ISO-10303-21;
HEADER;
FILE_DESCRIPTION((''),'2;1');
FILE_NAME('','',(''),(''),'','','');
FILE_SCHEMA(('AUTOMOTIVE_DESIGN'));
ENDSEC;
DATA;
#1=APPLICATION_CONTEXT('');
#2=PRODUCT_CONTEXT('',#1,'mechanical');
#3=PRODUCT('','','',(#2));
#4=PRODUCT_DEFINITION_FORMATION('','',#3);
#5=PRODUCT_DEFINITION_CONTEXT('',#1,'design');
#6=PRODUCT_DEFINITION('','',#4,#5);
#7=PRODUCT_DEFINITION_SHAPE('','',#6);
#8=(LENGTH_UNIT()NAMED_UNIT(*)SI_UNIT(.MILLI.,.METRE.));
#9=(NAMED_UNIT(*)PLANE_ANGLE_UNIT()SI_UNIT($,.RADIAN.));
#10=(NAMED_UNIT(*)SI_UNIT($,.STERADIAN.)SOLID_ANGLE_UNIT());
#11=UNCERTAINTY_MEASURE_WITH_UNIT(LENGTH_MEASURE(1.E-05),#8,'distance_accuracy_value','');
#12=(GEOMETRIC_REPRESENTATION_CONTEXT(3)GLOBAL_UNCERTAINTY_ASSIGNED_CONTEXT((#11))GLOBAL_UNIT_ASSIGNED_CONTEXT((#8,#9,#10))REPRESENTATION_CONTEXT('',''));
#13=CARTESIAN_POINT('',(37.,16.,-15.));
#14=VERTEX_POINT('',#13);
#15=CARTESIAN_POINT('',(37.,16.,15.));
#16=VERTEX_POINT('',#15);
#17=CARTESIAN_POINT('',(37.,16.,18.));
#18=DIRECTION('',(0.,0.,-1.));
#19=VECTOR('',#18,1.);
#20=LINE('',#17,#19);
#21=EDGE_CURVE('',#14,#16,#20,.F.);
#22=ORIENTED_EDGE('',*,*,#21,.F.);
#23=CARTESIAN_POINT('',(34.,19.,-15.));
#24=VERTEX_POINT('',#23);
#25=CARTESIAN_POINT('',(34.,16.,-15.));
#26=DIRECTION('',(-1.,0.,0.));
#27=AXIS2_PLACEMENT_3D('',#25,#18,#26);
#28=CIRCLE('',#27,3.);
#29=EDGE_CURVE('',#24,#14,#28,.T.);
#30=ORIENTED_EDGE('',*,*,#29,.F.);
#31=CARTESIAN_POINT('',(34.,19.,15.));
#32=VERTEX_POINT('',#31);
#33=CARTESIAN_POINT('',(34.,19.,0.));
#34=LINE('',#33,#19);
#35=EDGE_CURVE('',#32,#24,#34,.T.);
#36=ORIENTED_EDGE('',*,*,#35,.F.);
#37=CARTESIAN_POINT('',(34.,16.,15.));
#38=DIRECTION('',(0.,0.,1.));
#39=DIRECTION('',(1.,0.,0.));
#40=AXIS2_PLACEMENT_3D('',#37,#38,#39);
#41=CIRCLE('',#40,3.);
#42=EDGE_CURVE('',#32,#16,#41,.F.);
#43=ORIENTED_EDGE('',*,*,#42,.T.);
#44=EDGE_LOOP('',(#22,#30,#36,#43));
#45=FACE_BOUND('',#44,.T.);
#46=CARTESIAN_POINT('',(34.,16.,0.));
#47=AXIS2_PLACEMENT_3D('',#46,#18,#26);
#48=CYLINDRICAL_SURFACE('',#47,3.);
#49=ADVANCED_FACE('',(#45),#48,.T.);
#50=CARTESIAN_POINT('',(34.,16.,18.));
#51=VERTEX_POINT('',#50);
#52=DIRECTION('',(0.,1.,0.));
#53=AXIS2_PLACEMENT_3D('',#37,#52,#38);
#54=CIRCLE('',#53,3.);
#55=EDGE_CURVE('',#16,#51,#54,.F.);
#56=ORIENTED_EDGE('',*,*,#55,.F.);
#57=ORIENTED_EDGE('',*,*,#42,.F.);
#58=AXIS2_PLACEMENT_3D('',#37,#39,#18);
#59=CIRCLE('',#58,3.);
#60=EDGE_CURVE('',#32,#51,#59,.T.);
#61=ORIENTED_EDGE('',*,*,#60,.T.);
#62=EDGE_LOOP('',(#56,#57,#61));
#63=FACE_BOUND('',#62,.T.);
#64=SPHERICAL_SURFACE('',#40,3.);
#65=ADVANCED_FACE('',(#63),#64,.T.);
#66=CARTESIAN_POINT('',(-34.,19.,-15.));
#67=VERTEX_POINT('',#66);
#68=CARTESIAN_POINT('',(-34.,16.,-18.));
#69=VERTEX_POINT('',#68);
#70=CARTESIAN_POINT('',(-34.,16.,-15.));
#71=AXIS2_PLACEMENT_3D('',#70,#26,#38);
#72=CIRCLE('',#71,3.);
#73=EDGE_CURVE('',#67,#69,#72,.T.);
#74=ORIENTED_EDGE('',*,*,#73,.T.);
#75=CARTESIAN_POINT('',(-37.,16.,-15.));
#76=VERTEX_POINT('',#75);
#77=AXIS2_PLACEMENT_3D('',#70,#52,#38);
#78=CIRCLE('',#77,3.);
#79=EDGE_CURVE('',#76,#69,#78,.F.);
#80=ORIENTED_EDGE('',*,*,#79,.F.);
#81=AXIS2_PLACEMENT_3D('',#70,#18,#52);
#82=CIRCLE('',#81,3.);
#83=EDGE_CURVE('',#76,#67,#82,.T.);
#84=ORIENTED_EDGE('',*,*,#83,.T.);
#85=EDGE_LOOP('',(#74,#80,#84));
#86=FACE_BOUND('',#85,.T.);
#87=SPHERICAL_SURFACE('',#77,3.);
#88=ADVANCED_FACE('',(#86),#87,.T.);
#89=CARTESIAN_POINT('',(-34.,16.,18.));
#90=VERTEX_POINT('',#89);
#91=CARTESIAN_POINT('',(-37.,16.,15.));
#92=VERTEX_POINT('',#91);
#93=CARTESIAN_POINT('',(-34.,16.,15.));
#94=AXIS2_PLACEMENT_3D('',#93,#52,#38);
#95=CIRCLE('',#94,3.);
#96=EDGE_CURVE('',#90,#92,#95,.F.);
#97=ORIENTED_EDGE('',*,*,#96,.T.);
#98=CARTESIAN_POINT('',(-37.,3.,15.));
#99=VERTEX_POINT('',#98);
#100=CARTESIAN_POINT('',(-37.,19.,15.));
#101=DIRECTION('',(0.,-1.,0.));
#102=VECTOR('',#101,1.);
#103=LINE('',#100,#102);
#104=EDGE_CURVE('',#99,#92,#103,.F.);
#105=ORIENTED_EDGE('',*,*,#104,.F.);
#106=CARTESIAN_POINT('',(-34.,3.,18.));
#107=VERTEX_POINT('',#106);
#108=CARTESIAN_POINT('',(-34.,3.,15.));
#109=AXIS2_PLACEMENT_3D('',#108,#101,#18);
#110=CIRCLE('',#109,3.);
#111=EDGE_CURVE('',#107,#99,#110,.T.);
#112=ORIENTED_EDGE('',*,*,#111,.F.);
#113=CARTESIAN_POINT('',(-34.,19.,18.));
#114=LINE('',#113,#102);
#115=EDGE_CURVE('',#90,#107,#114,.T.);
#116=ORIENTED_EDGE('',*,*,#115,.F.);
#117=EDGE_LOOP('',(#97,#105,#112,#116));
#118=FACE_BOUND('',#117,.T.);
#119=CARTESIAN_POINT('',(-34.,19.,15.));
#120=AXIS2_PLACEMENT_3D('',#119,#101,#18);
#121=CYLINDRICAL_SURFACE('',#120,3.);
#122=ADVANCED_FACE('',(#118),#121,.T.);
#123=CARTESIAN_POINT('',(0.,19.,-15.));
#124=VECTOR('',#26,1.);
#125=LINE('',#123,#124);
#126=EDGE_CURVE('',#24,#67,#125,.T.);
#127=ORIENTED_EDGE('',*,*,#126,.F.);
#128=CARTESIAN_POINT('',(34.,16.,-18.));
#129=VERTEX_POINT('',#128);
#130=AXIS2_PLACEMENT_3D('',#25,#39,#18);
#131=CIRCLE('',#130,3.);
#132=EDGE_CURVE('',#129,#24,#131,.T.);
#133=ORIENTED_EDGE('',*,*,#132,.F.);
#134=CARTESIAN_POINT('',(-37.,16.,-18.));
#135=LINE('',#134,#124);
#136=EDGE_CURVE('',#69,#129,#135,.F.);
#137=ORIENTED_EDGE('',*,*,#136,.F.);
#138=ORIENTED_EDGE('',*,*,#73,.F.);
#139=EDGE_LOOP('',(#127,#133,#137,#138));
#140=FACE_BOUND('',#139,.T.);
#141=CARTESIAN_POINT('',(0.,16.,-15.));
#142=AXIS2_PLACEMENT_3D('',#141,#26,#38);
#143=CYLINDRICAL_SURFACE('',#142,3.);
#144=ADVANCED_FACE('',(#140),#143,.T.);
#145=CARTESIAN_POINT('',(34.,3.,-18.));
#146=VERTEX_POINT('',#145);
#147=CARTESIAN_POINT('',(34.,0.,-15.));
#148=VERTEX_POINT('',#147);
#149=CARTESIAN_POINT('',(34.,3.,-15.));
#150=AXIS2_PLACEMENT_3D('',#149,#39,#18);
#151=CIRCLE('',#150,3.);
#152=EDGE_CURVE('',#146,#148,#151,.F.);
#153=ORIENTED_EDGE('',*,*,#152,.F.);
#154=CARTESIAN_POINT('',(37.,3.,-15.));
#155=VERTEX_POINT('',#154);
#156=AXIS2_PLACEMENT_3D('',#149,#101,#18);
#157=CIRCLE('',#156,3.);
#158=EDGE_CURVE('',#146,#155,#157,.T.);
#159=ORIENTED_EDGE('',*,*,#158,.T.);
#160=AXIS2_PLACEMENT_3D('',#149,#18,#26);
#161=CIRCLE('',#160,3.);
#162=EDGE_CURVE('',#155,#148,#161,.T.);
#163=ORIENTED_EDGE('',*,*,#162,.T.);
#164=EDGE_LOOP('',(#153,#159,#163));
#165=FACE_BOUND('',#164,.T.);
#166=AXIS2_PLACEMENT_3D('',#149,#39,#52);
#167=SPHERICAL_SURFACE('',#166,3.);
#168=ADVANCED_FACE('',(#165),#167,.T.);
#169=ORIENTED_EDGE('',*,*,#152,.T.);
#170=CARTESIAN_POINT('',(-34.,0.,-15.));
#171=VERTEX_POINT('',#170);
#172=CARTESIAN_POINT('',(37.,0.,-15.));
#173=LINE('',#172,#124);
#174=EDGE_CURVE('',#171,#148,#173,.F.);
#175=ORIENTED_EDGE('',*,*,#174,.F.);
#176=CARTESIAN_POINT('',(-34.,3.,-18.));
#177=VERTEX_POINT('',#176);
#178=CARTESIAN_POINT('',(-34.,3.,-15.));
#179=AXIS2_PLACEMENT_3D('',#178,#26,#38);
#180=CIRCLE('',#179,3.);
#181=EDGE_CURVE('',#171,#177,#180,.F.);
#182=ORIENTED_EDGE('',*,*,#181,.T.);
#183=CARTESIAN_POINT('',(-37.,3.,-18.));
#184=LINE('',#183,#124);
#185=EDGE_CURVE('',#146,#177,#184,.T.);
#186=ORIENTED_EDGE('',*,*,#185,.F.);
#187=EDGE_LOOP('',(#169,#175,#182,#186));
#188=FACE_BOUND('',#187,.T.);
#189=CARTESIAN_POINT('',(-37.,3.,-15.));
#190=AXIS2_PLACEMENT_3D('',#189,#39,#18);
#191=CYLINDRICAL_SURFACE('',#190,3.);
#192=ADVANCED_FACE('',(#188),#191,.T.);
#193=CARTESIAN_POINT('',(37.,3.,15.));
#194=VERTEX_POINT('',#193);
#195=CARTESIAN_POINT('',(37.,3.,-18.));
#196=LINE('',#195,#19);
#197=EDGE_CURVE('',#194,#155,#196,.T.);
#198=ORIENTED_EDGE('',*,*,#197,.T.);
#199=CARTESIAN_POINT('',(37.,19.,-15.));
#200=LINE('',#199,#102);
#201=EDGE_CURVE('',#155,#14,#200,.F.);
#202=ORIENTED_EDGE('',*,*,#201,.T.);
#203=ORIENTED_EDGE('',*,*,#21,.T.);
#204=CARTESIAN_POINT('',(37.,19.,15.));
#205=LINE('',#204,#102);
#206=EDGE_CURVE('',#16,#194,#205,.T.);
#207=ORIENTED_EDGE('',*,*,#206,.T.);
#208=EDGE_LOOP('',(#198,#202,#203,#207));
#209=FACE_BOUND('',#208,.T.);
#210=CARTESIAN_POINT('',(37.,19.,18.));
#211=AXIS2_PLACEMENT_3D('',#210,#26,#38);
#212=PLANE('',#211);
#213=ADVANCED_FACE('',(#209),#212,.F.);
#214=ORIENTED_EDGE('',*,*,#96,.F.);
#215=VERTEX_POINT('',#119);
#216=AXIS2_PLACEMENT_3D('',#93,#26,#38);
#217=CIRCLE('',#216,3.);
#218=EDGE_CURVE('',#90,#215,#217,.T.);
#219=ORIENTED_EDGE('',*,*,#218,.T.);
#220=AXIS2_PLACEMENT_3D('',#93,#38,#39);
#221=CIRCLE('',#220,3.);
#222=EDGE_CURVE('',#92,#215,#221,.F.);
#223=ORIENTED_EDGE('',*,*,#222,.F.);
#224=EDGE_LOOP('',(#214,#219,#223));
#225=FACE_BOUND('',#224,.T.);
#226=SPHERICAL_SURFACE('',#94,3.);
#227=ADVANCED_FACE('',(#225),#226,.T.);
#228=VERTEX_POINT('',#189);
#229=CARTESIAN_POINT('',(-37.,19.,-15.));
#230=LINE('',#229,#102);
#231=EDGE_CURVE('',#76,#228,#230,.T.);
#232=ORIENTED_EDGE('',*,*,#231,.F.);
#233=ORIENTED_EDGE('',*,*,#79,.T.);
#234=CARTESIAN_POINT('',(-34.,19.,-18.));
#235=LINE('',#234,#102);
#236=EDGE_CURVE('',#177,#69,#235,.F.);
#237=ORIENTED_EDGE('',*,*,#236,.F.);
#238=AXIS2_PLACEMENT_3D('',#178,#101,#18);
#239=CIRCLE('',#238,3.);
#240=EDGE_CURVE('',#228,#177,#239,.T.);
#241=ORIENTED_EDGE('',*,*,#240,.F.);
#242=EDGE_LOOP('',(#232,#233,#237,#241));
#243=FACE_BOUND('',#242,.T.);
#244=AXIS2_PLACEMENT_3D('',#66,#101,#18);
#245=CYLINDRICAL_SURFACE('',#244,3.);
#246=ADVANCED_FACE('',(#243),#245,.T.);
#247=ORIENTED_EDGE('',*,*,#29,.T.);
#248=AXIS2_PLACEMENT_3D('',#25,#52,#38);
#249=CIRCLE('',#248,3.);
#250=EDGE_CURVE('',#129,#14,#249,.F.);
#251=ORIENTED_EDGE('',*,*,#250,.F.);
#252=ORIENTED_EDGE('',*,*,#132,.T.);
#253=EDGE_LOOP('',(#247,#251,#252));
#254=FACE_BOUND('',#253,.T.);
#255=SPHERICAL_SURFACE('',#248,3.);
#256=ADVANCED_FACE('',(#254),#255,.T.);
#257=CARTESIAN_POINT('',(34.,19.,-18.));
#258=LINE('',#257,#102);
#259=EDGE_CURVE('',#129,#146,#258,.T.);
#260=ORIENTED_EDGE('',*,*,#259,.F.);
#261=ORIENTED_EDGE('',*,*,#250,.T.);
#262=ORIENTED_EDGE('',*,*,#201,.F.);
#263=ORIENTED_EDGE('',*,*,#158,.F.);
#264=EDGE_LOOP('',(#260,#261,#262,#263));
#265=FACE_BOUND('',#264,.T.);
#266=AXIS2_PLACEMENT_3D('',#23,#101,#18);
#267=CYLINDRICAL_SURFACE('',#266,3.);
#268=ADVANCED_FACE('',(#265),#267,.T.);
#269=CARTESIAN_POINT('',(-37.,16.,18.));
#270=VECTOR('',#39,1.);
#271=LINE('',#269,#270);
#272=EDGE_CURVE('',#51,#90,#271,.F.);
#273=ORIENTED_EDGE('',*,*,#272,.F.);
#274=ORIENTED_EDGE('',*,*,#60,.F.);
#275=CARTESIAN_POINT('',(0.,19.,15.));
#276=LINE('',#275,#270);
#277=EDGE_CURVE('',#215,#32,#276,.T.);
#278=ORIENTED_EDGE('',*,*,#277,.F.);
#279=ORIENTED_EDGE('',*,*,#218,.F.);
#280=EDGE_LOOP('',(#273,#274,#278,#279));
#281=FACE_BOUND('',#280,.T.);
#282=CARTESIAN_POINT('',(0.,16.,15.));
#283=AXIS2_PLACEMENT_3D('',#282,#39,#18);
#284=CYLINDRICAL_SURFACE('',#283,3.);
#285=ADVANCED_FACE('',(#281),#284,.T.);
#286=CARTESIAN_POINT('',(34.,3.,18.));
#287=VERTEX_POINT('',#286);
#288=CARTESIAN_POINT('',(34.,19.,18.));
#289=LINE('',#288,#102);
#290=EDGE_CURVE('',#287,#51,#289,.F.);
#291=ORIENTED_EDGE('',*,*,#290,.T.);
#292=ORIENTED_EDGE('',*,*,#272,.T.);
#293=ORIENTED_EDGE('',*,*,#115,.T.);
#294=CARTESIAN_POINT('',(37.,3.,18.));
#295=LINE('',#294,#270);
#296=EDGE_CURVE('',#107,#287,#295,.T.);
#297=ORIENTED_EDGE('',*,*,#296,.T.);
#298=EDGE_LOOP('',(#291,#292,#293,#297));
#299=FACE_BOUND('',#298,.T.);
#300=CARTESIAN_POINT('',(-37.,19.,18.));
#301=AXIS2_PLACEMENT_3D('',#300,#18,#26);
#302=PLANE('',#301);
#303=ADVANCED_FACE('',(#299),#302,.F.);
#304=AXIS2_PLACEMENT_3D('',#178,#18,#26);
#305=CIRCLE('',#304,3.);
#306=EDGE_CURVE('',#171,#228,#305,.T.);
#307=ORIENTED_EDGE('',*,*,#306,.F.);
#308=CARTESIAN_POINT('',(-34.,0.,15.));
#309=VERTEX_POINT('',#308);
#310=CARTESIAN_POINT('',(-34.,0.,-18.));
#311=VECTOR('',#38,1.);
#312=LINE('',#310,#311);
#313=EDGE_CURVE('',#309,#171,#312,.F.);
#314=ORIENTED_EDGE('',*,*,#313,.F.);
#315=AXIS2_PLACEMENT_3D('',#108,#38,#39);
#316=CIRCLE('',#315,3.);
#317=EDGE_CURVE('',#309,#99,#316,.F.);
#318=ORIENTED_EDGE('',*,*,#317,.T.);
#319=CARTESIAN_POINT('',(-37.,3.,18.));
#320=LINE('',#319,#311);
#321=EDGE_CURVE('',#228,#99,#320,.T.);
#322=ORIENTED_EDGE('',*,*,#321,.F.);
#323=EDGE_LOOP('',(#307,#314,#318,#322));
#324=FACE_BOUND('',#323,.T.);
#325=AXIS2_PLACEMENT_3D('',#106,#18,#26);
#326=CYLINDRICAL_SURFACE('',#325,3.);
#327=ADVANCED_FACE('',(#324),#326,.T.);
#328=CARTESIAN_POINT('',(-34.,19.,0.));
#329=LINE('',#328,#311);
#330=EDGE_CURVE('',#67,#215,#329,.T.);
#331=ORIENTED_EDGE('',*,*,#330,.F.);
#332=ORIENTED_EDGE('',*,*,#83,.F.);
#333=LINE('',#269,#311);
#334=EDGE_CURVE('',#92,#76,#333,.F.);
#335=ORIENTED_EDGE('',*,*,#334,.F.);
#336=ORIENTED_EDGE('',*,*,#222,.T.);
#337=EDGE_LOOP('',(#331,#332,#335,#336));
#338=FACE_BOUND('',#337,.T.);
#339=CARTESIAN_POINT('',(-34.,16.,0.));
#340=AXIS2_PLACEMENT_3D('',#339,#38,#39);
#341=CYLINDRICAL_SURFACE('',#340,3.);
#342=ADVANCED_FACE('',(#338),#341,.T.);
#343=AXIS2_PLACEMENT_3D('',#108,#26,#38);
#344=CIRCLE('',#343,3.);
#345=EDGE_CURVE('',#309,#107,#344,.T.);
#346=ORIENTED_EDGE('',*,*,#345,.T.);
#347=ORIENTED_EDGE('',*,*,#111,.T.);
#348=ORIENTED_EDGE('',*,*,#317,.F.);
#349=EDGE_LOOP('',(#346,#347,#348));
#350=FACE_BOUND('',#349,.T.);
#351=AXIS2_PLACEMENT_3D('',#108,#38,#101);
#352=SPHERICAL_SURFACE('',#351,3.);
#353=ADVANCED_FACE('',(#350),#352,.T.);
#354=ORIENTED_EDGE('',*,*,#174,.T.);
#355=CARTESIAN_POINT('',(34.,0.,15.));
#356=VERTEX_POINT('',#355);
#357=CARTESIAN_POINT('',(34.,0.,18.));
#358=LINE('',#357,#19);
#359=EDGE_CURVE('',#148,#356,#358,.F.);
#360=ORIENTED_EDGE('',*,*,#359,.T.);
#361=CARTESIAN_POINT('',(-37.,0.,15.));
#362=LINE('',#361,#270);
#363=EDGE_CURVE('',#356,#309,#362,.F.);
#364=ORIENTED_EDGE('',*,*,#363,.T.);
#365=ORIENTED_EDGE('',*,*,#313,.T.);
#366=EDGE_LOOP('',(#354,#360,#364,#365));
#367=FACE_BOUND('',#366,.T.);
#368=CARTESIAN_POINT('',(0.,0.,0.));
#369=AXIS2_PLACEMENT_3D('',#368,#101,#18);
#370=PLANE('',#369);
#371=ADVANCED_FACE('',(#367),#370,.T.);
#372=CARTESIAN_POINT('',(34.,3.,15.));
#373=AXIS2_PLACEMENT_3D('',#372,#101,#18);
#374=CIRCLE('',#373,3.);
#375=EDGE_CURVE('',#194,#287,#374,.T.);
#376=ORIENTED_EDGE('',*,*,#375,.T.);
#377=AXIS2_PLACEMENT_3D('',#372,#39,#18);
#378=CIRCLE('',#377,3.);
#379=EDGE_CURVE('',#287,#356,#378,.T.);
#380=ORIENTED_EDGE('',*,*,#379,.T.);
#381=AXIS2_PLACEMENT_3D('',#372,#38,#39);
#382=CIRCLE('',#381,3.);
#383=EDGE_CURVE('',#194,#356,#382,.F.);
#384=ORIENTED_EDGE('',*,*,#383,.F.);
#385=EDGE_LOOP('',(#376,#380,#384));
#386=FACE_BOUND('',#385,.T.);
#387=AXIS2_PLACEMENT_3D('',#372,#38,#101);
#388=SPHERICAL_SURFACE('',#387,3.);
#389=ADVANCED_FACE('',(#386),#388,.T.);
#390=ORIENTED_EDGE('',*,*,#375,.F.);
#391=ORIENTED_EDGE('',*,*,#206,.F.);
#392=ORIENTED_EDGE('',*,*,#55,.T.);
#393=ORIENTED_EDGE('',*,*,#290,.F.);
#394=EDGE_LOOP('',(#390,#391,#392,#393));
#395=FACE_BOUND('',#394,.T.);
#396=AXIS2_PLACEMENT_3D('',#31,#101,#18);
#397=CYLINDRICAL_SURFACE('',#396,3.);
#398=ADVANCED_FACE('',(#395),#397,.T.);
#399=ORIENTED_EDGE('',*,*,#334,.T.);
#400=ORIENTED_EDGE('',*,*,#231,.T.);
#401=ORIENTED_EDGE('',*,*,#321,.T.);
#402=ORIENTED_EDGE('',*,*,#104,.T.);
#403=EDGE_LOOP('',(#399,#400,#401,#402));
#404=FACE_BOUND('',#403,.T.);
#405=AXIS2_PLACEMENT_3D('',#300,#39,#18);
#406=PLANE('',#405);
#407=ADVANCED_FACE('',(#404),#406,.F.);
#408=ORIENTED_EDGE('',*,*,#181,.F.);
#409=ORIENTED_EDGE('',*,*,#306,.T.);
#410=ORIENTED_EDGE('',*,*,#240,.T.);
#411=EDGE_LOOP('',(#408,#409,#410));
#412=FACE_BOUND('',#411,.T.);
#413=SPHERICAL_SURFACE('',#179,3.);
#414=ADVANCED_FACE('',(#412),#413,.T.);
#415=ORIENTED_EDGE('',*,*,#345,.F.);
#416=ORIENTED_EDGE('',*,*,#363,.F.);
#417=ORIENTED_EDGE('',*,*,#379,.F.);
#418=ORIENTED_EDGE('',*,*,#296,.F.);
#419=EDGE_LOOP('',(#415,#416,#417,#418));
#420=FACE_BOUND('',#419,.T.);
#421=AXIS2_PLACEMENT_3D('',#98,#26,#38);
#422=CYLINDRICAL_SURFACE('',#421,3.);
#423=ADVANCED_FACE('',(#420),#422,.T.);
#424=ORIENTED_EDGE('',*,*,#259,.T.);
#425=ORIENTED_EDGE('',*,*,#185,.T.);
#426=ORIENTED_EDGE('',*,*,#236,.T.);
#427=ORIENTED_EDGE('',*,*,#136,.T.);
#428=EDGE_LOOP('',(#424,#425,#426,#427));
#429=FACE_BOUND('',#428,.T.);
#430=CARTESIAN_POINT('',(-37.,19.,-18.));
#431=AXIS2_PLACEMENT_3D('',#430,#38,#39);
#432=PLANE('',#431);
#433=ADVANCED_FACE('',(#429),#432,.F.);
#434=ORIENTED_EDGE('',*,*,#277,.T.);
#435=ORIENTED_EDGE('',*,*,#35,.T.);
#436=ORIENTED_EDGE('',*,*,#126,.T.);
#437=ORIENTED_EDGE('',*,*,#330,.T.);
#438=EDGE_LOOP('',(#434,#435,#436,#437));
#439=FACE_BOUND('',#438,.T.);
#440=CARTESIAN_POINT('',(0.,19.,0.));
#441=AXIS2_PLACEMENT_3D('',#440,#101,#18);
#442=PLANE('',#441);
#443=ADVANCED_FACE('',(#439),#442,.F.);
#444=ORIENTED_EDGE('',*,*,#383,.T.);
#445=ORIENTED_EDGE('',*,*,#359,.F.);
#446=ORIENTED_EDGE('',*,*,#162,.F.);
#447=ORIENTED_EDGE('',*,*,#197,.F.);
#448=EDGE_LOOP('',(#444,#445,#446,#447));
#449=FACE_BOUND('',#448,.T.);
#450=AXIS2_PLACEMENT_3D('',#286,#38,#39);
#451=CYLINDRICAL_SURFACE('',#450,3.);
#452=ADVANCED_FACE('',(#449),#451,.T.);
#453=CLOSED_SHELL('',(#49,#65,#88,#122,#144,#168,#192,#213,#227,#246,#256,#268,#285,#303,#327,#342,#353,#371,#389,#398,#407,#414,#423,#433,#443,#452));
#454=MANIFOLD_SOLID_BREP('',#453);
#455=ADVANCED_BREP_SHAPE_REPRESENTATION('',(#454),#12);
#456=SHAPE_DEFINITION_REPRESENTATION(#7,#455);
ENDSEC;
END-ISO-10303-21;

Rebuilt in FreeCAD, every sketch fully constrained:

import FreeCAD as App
import Part
import Sketcher

V = App.Vector
Q = App.Units.Quantity

doc = App.newDocument("Part")
body = doc.addObject("PartDesign::Body", "Body")

sketch1 = doc.addObject("Sketcher::SketchObject", "Sketch")
body.addObject(sketch1)
sketch1.AttachmentSupport = (doc.XZ_Plane, [""])
sketch1.MapMode = "FlatFace"
sketch1.addGeometry(Part.LineSegment(V(-37, -18, 0), V(-37, 18, 0)), False)
sketch1.addGeometry(Part.LineSegment(V(-37, 18, 0), V(37, 18, 0)), False)
sketch1.addGeometry(Part.LineSegment(V(37, 18, 0), V(37, -18, 0)), False)
sketch1.addGeometry(Part.LineSegment(V(37, -18, 0), V(-37, -18, 0)), False)
sketch1.addConstraint(Sketcher.Constraint("Coincident", 0, 2, 1, 1))
sketch1.addConstraint(Sketcher.Constraint("Coincident", 1, 2, 2, 1))
sketch1.addConstraint(Sketcher.Constraint("Coincident", 2, 2, 3, 1))
sketch1.addConstraint(Sketcher.Constraint("Coincident", 3, 2, 0, 1))
sketch1.addConstraint(Sketcher.Constraint("Vertical", 0))
sketch1.addConstraint(Sketcher.Constraint("Horizontal", 1))
sketch1.addConstraint(Sketcher.Constraint("Vertical", 2))
sketch1.addConstraint(Sketcher.Constraint("Horizontal", 3))
sketch1.addConstraint(Sketcher.Constraint("Symmetric", 0, 2, 2, 2, -1, 1))
sketch1.addConstraint(Sketcher.Constraint("DistanceX", 1, 1, 1, 2, Q("74 mm")))
sketch1.addConstraint(Sketcher.Constraint("DistanceY", 0, 1, 0, 2, Q("36 mm")))
pad1 = doc.addObject("PartDesign::Pad", "Pad")
body.addObject(pad1)
pad1.Profile = sketch1
pad1.Length = 19
pad1.Reversed = True
doc.recompute()

fillet = doc.addObject("PartDesign::Fillet", "Fillet")
body.addObject(fillet)
fillet.Base = (pad1, ["Edge1"])
fillet.UseAllEdges = True
fillet.Radius = 3

doc.recompute()
